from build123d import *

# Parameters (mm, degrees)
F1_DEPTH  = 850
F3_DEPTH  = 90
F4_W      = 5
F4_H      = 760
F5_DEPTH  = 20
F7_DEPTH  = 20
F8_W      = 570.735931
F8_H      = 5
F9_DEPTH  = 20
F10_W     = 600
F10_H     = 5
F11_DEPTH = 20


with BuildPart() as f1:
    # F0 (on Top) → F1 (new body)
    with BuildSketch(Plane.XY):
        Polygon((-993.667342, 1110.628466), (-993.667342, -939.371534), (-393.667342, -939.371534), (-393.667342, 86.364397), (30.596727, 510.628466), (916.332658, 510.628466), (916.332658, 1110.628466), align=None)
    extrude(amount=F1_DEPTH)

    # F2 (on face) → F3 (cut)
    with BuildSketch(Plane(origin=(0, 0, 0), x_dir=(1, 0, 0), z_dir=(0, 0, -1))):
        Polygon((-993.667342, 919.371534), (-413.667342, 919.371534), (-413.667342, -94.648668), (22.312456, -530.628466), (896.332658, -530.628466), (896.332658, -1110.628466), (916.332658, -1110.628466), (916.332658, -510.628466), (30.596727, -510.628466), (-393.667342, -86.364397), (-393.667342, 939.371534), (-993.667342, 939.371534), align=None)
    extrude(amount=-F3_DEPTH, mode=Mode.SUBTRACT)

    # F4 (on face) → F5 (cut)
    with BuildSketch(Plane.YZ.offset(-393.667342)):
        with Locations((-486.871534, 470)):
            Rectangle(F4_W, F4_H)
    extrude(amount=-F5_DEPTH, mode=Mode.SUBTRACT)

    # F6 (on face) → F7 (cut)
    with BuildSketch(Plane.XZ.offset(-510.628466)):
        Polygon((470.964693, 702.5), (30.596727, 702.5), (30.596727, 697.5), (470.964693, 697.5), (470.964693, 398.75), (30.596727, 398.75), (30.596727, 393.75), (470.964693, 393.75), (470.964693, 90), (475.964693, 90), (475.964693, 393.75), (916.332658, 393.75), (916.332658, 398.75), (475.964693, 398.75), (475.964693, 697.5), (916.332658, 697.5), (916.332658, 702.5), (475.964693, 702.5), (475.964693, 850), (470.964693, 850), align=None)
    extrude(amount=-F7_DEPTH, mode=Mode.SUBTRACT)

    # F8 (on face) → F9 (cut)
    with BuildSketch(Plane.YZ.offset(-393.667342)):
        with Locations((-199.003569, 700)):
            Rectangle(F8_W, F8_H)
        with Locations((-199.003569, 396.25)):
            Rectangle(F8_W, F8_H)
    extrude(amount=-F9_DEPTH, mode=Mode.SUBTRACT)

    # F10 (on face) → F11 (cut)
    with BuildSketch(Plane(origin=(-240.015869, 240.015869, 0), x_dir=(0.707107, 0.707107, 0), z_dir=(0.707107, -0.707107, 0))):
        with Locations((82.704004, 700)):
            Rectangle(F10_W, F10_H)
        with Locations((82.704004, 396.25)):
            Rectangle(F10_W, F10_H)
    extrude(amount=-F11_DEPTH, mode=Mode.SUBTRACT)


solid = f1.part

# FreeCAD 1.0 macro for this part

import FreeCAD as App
import Part
import Sketcher
from FreeCAD import Vector
Q = App.Units.Quantity

doc = App.newDocument("Part")
body = doc.addObject("PartDesign::Body", "Body")

sketch1 = doc.addObject("Sketcher::SketchObject", "Sketch")
body.addObject(sketch1)
sketch1.AttachmentSupport = (doc.XY_Plane, [""])
sketch1.MapMode = "FlatFace"
sketch1.addGeometry(Part.LineSegment(Vector(-994, 1111, 0), Vector(-994, -939, 0)), False)
sketch1.addGeometry(Part.LineSegment(Vector(-994, -939, 0), Vector(-394, -939, 0)), False)
sketch1.addGeometry(Part.LineSegment(Vector(-394, -939, 0), Vector(-394, 86, 0)), False)
sketch1.addGeometry(Part.LineSegment(Vector(-394, 86, 0), Vector(31, 511, 0)), False)
sketch1.addGeometry(Part.LineSegment(Vector(31, 511, 0), Vector(916, 511, 0)), False)
sketch1.addGeometry(Part.LineSegment(Vector(916, 511, 0), Vector(916, 1111, 0)), False)
sketch1.addGeometry(Part.LineSegment(Vector(916, 1111, 0), Vector(-994, 1111, 0)), False)
sketch1.addConstraint(Sketcher.Constraint("Coincident", 0, 2, 1, 1))
sketch1.addConstraint(Sketcher.Constraint("Coincident", 1, 2, 2, 1))
sketch1.addConstraint(Sketcher.Constraint("Coincident", 2, 2, 3, 1))
sketch1.addConstraint(Sketcher.Constraint("Coincident", 3, 2, 4, 1))
sketch1.addConstraint(Sketcher.Constraint("Coincident", 4, 2, 5, 1))
sketch1.addConstraint(Sketcher.Constraint("Coincident", 5, 2, 6, 1))
sketch1.addConstraint(Sketcher.Constraint("Coincident", 6, 2, 0, 1))
sketch1.addConstraint(Sketcher.Constraint("Vertical", 0))
sketch1.addConstraint(Sketcher.Constraint("Horizontal", 1))
sketch1.addConstraint(Sketcher.Constraint("Vertical", 2))
sketch1.addConstraint(Sketcher.Constraint("Horizontal", 4))
sketch1.addConstraint(Sketcher.Constraint("Vertical", 5))
sketch1.addConstraint(Sketcher.Constraint("Horizontal", 6))
sketch1.addConstraint(Sketcher.Constraint("Equal", 1, 5))
sketch1.addConstraint(Sketcher.Constraint("DistanceX", 1, 1, 1, 2, 600.0))
sketch1.addConstraint(Sketcher.Constraint("DistanceX", 6, 2, 6, 1, 1910.0))
sketch1.addConstraint(Sketcher.Constraint("DistanceY", 0, 2, 0, 1, 2050.0))
sketch1.addConstraint(Sketcher.Constraint("Angle", 3, Q("45 deg")))
sketch1.addConstraint(Sketcher.Constraint("Distance", 3, 600.0))
sketch1.addConstraint(Sketcher.Constraint("DistanceX", 0, 2, -1, 1, 993.667342))
sketch1.addConstraint(Sketcher.Constraint("DistanceY", 0, 2, -1, 1, 939.371534))
pad1 = doc.addObject("PartDesign::Pad", "Pad")
body.addObject(pad1)
pad1.Profile = sketch1
pad1.Length = 850

sketch2 = doc.addObject("Sketcher::SketchObject", "Sketch001")
body.addObject(sketch2)
sketch2.AttachmentSupport = (doc.XY_Plane, [""])
sketch2.MapMode = "FlatFace"
sketch2.addGeometry(Part.LineSegment(Vector(-994, -919, 0), Vector(-414, -919, 0)), False)
sketch2.addGeometry(Part.LineSegment(Vector(-414, -919, 0), Vector(-414, 95, 0)), False)
sketch2.addGeometry(Part.LineSegment(Vector(-414, 95, 0), Vector(22, 531, 0)), False)
sketch2.addGeometry(Part.LineSegment(Vector(22, 531, 0), Vector(896, 531, 0)), False)
sketch2.addGeometry(Part.LineSegment(Vector(896, 531, 0), Vector(896, 1111, 0)), False)
sketch2.addGeometry(Part.LineSegment(Vector(896, 1111, 0), Vector(916, 1111, 0)), False)
sketch2.addGeometry(Part.LineSegment(Vector(916, 1111, 0), Vector(916, 511, 0)), False)
sketch2.addGeometry(Part.LineSegment(Vector(916, 511, 0), Vector(31, 511, 0)), False)
sketch2.addGeometry(Part.LineSegment(Vector(31, 511, 0), Vector(-394, 86, 0)), False)
sketch2.addGeometry(Part.LineSegment(Vector(-394, 86, 0), Vector(-394, -939, 0)), False)
sketch2.addGeometry(Part.LineSegment(Vector(-394, -939, 0), Vector(-994, -939, 0)), False)
sketch2.addGeometry(Part.LineSegment(Vector(-994, -939, 0), Vector(-994, -919, 0)), False)
sketch2.addConstraint(Sketcher.Constraint("Coincident", 0, 2, 1, 1))
sketch2.addConstraint(Sketcher.Constraint("Coincident", 1, 2, 2, 1))
sketch2.addConstraint(Sketcher.Constraint("Coincident", 2, 2, 3, 1))
sketch2.addConstraint(Sketcher.Constraint("Coincident", 3, 2, 4, 1))
sketch2.addConstraint(Sketcher.Constraint("Coincident", 4, 2, 5, 1))
sketch2.addConstraint(Sketcher.Constraint("Coincident", 5, 2, 6, 1))
sketch2.addConstraint(Sketcher.Constraint("Coincident", 6, 2, 7, 1))
sketch2.addConstraint(Sketcher.Constraint("Coincident", 7, 2, 8, 1))
sketch2.addConstraint(Sketcher.Constraint("Coincident", 8, 2, 9, 1))
sketch2.addConstraint(Sketcher.Constraint("Coincident", 9, 2, 10, 1))
sketch2.addConstraint(Sketcher.Constraint("Coincident", 10, 2, 11, 1))
sketch2.addConstraint(Sketcher.Constraint("Coincident", 11, 2, 0, 1))
sketch2.addConstraint(Sketcher.Constraint("Horizontal", 0))
sketch2.addConstraint(Sketcher.Constraint("Vertical", 1))
sketch2.addConstraint(Sketcher.Constraint("Horizontal", 3))
sketch2.addConstraint(Sketcher.Constraint("Vertical", 4))
sketch2.addConstraint(Sketcher.Constraint("Horizontal", 5))
sketch2.addConstraint(Sketcher.Constraint("Vertical", 6))
sketch2.addConstraint(Sketcher.Constraint("Horizontal", 7))
sketch2.addConstraint(Sketcher.Constraint("Vertical", 9))
sketch2.addConstraint(Sketcher.Constraint("Horizontal", 10))
sketch2.addConstraint(Sketcher.Constraint("Vertical", 11))
sketch2.addConstraint(Sketcher.Constraint("Parallel", 2, 8))
sketch2.addConstraint(Sketcher.Constraint("Equal", 0, 4))
sketch2.addConstraint(Sketcher.Constraint("Equal", 10, 6))
sketch2.addConstraint(Sketcher.Constraint("Equal", 5, 11))
sketch2.addConstraint(Sketcher.Constraint("DistanceX", 0, 1, 0, 2, 580.0))
sketch2.addConstraint(Sketcher.Constraint("DistanceX", 5, 1, 5, 2, 20.0))
sketch2.addConstraint(Sketcher.Constraint("DistanceX", 10, 2, 10, 1, 600.0))
sketch2.addConstraint(Sketcher.Constraint("Angle", 2, Q("45 deg")))
sketch2.addConstraint(Sketcher.Constraint("Distance", 8, 600.0))
sketch2.addConstraint(Sketcher.Constraint("DistanceY", 0, 2, 2, 2, 1450.0))
sketch2.addConstraint(Sketcher.Constraint("DistanceX", 1, 2, 3, 2, 1310.0))
sketch2.addConstraint(Sketcher.Constraint("DistanceX", 3, 1, 3, 2, 874.020202))
sketch2.addConstraint(Sketcher.Constraint("DistanceX", 0, 2, -1, 1, 413.667342))
sketch2.addConstraint(Sketcher.Constraint("DistanceY", -1, 1, 1, 2, 94.648668))
pocket1 = doc.addObject("PartDesign::Pocket", "Pocket")
body.addObject(pocket1)
pocket1.Profile = sketch2
pocket1.Length = 90
pocket1.Reversed = True

sketch3 = doc.addObject("Sketcher::SketchObject", "Sketch002")
body.addObject(sketch3)
sketch3.AttachmentSupport = (doc.YZ_Plane, [""])
sketch3.MapMode = "FlatFace"
sketch3.AttachmentOffset = App.Placement(Vector(0, 0, -393.667342), App.Rotation())
sketch3.addGeometry(Part.LineSegment(Vector(-489, 850, 0), Vector(-489, 90, 0)), False)
sketch3.addGeometry(Part.LineSegment(Vector(-489, 90, 0), Vector(-484, 90, 0)), False)
sketch3.addGeometry(Part.LineSegment(Vector(-484, 90, 0), Vector(-484, 850, 0)), False)
sketch3.addGeometry(Part.LineSegment(Vector(-484, 850, 0), Vector(-489, 850, 0)), False)
sketch3.addConstraint(Sketcher.Constraint("Coincident", 0, 2, 1, 1))
sketch3.addConstraint(Sketcher.Constraint("Coincident", 1, 2, 2, 1))
sketch3.addConstraint(Sketcher.Constraint("Coincident", 2, 2, 3, 1))
sketch3.addConstraint(Sketcher.Constraint("Coincident", 3, 2, 0, 1))
sketch3.addConstraint(Sketcher.Constraint("Vertical", 0))
sketch3.addConstraint(Sketcher.Constraint("Horizontal", 1))
sketch3.addConstraint(Sketcher.Constraint("Vertical", 2))
sketch3.addConstraint(Sketcher.Constraint("Horizontal", 3))
sketch3.addConstraint(Sketcher.Constraint("DistanceX", 1, 1, 1, 2, 5.0))
sketch3.addConstraint(Sketcher.Constraint("DistanceY", 0, 2, 0, 1, 760.0))
sketch3.addConstraint(Sketcher.Constraint("DistanceY", -1, 1, 0, 2, 90.0))
sketch3.addConstraint(Sketcher.Constraint("DistanceX", 0, 2, -1, 1, 489.371534))
pocket2 = doc.addObject("PartDesign::Pocket", "Pocket001")
body.addObject(pocket2)
pocket2.Profile = sketch3
pocket2.Length = 20

sketch4 = doc.addObject("Sketcher::SketchObject", "Sketch003")
body.addObject(sketch4)
sketch4.AttachmentSupport = (doc.XZ_Plane, [""])
sketch4.MapMode = "FlatFace"
sketch4.AttachmentOffset = App.Placement(Vector(0, 0, -510.628466), App.Rotation())
sketch4.addGeometry(Part.LineSegment(Vector(471, 702, 0), Vector(31, 702, 0)), False)
sketch4.addGeometry(Part.LineSegment(Vector(31, 702, 0), Vector(31, 698, 0)), False)
sketch4.addGeometry(Part.LineSegment(Vector(31, 698, 0), Vector(471, 698, 0)), False)
sketch4.addGeometry(Part.LineSegment(Vector(471, 698, 0), Vector(471, 399, 0)), False)
sketch4.addGeometry(Part.LineSegment(Vector(471, 399, 0), Vector(31, 399, 0)), False)
sketch4.addGeometry(Part.LineSegment(Vector(31, 399, 0), Vector(31, 394, 0)), False)
sketch4.addGeometry(Part.LineSegment(Vector(31, 394, 0), Vector(471, 394, 0)), False)
sketch4.addGeometry(Part.LineSegment(Vector(471, 394, 0), Vector(471, 90, 0)), False)
sketch4.addGeometry(Part.LineSegment(Vector(471, 90, 0), Vector(476, 90, 0)), False)
sketch4.addGeometry(Part.LineSegment(Vector(476, 90, 0), Vector(476, 394, 0)), False)
sketch4.addGeometry(Part.LineSegment(Vector(476, 394, 0), Vector(916, 394, 0)), False)
sketch4.addGeometry(Part.LineSegment(Vector(916, 394, 0), Vector(916, 399, 0)), False)
sketch4.addGeometry(Part.LineSegment(Vector(916, 399, 0), Vector(476, 399, 0)), False)
sketch4.addGeometry(Part.LineSegment(Vector(476, 399, 0), Vector(476, 698, 0)), False)
sketch4.addGeometry(Part.LineSegment(Vector(476, 698, 0), Vector(916, 698, 0)), False)
sketch4.addGeometry(Part.LineSegment(Vector(916, 698, 0), Vector(916, 702, 0)), False)
sketch4.addGeometry(Part.LineSegment(Vector(916, 702, 0), Vector(476, 702, 0)), False)
sketch4.addGeometry(Part.LineSegment(Vector(476, 702, 0), Vector(476, 850, 0)), False)
sketch4.addGeometry(Part.LineSegment(Vector(476, 850, 0), Vector(471, 850, 0)), False)
sketch4.addGeometry(Part.LineSegment(Vector(471, 850, 0), Vector(471, 702, 0)), False)
sketch4.addConstraint(Sketcher.Constraint("Coincident", 0, 2, 1, 1))
sketch4.addConstraint(Sketcher.Constraint("Coincident", 1, 2, 2, 1))
sketch4.addConstraint(Sketcher.Constraint("Coincident", 2, 2, 3, 1))
sketch4.addConstraint(Sketcher.Constraint("Coincident", 3, 2, 4, 1))
sketch4.addConstraint(Sketcher.Constraint("Coincident", 4, 2, 5, 1))
sketch4.addConstraint(Sketcher.Constraint("Coincident", 5, 2, 6, 1))
sketch4.addConstraint(Sketcher.Constraint("Coincident", 6, 2, 7, 1))
sketch4.addConstraint(Sketcher.Constraint("Coincident", 7, 2, 8, 1))
sketch4.addConstraint(Sketcher.Constraint("Coincident", 8, 2, 9, 1))
sketch4.addConstraint(Sketcher.Constraint("Coincident", 9, 2, 10, 1))
sketch4.addConstraint(Sketcher.Constraint("Coincident", 10, 2, 11, 1))
sketch4.addConstraint(Sketcher.Constraint("Coincident", 11, 2, 12, 1))
sketch4.addConstraint(Sketcher.Constraint("Coincident", 12, 2, 13, 1))
sketch4.addConstraint(Sketcher.Constraint("Coincident", 13, 2, 14, 1))
sketch4.addConstraint(Sketcher.Constraint("Coincident", 14, 2, 15, 1))
sketch4.addConstraint(Sketcher.Constraint("Coincident", 15, 2, 16, 1))
sketch4.addConstraint(Sketcher.Constraint("Coincident", 16, 2, 17, 1))
sketch4.addConstraint(Sketcher.Constraint("Coincident", 17, 2, 18, 1))
sketch4.addConstraint(Sketcher.Constraint("Coincident", 18, 2, 19, 1))
sketch4.addConstraint(Sketcher.Constraint("Coincident", 19, 2, 0, 1))
sketch4.addConstraint(Sketcher.Constraint("Horizontal", 0))
sketch4.addConstraint(Sketcher.Constraint("Vertical", 1))
sketch4.addConstraint(Sketcher.Constraint("Horizontal", 2))
sketch4.addConstraint(Sketcher.Constraint("Vertical", 3))
sketch4.addConstraint(Sketcher.Constraint("Horizontal", 4))
sketch4.addConstraint(Sketcher.Constraint("Vertical", 5))
sketch4.addConstraint(Sketcher.Constraint("Horizontal", 6))
sketch4.addConstraint(Sketcher.Constraint("Vertical", 7))
sketch4.addConstraint(Sketcher.Constraint("Horizontal", 8))
sketch4.addConstraint(Sketcher.Constraint("Vertical", 9))
sketch4.addConstraint(Sketcher.Constraint("Horizontal", 10))
sketch4.addConstraint(Sketcher.Constraint("Vertical", 11))
sketch4.addConstraint(Sketcher.Constraint("Horizontal", 12))
sketch4.addConstraint(Sketcher.Constraint("Vertical", 13))
sketch4.addConstraint(Sketcher.Constraint("Horizontal", 14))
sketch4.addConstraint(Sketcher.Constraint("Vertical", 15))
sketch4.addConstraint(Sketcher.Constraint("Horizontal", 16))
sketch4.addConstraint(Sketcher.Constraint("Vertical", 17))
sketch4.addConstraint(Sketcher.Constraint("Horizontal", 18))
sketch4.addConstraint(Sketcher.Constraint("Vertical", 19))
sketch4.addConstraint(Sketcher.Constraint("Horizontal", 6, 2, 9, 2))
sketch4.addConstraint(Sketcher.Constraint("Horizontal", 4, 2, 11, 2))
sketch4.addConstraint(Sketcher.Constraint("Horizontal", 2, 2, 13, 2))
sketch4.addConstraint(Sketcher.Constraint("Horizontal", 0, 2, 15, 2))
sketch4.addConstraint(Sketcher.Constraint("Vertical", 1, 2, 4, 2))
sketch4.addConstraint(Sketcher.Constraint("Vertical", 3, 2, 6, 2))
sketch4.addConstraint(Sketcher.Constraint("Vertical", 9, 2, 12, 2))
sketch4.addConstraint(Sketcher.Constraint("Vertical", 11, 2, 14, 2))
sketch4.addConstraint(Sketcher.Constraint("Vertical", 13, 2, 16, 2))
sketch4.addConstraint(Sketcher.Constraint("Vertical", 7, 2, 18, 2))
sketch4.addConstraint(Sketcher.Constraint("Equal", 6, 10))
sketch4.addConstraint(Sketcher.Constraint("Equal", 18, 1))
sketch4.addConstraint(Sketcher.Constraint("Equal", 1, 5))
sketch4.addConstraint(Sketcher.Constraint("DistanceX", 8, 1, 8, 2, 5.0))
sketch4.addConstraint(Sketcher.Constraint("DistanceY", 17, 1, 17, 2, 147.5))
sketch4.addConstraint(Sketcher.Constraint("DistanceY", -1, 1, 7, 2, 90.0))
sketch4.addConstraint(Sketcher.Constraint("DistanceY", -1, 1, 17, 2, 850.0))
sketch4.addConstraint(Sketcher.Constraint("DistanceY", 3, 2, 3, 1, 298.75))
sketch4.addConstraint(Sketcher.Constraint("DistanceX", 0, 2, 0, 1, 440.367966))
sketch4.addConstraint(Sketcher.Constraint("DistanceX", -1, 1, 10, 2, 916.332658))
pocket3 = doc.addObject("PartDesign::Pocket", "Pocket002")
body.addObject(pocket3)
pocket3.Profile = sketch4
pocket3.Length = 20

sketch5 = doc.addObject("Sketcher::SketchObject", "Sketch004")
body.addObject(sketch5)
sketch5.AttachmentSupport = (doc.YZ_Plane, [""])
sketch5.MapMode = "FlatFace"
sketch5.AttachmentOffset = App.Placement(Vector(0, 0, -393.667342), App.Rotation())
sketch5.addGeometry(Part.LineSegment(Vector(-484, 702, 0), Vector(-484, 698, 0)), False)
sketch5.addGeometry(Part.LineSegment(Vector(-484, 698, 0), Vector(86, 698, 0)), False)
sketch5.addGeometry(Part.LineSegment(Vector(86, 698, 0), Vector(86, 702, 0)), False)
sketch5.addGeometry(Part.LineSegment(Vector(86, 702, 0), Vector(-484, 702, 0)), False)
sketch5.addGeometry(Part.LineSegment(Vector(-484, 399, 0), Vector(-484, 394, 0)), False)
sketch5.addGeometry(Part.LineSegment(Vector(-484, 394, 0), Vector(86, 394, 0)), False)
sketch5.addGeometry(Part.LineSegment(Vector(86, 394, 0), Vector(86, 399, 0)), False)
sketch5.addGeometry(Part.LineSegment(Vector(86, 399, 0), Vector(-484, 399, 0)), False)
sketch5.addConstraint(Sketcher.Constraint("Coincident", 0, 2, 1, 1))
sketch5.addConstraint(Sketcher.Constraint("Coincident", 1, 2, 2, 1))
sketch5.addConstraint(Sketcher.Constraint("Coincident", 2, 2, 3, 1))
sketch5.addConstraint(Sketcher.Constraint("Coincident", 3, 2, 0, 1))
sketch5.addConstraint(Sketcher.Constraint("Coincident", 4, 2, 5, 1))
sketch5.addConstraint(Sketcher.Constraint("Coincident", 5, 2, 6, 1))
sketch5.addConstraint(Sketcher.Constraint("Coincident", 6, 2, 7, 1))
sketch5.addConstraint(Sketcher.Constraint("Coincident", 7, 2, 4, 1))
sketch5.addConstraint(Sketcher.Constraint("Vertical", 0))
sketch5.addConstraint(Sketcher.Constraint("Horizontal", 1))
sketch5.addConstraint(Sketcher.Constraint("Vertical", 2))
sketch5.addConstraint(Sketcher.Constraint("Horizontal", 3))
sketch5.addConstraint(Sketcher.Constraint("Vertical", 4))
sketch5.addConstraint(Sketcher.Constraint("Horizontal", 5))
sketch5.addConstraint(Sketcher.Constraint("Vertical", 6))
sketch5.addConstraint(Sketcher.Constraint("Horizontal", 7))
sketch5.addConstraint(Sketcher.Constraint("Vertical", 3, 2, 4, 2))
sketch5.addConstraint(Sketcher.Constraint("Vertical", 2, 2, 5, 2))
sketch5.addConstraint(Sketcher.Constraint("Equal", 2, 4))
sketch5.addConstraint(Sketcher.Constraint("DistanceY", 0, 2, 0, 1, 5.0))
sketch5.addConstraint(Sketcher.Constraint("DistanceY", -1, 1, 0, 2, 697.5))
sketch5.addConstraint(Sketcher.Constraint("DistanceY", -1, 1, 4, 2, 393.75))
sketch5.addConstraint(Sketcher.Constraint("DistanceX", 1, 1, 1, 2, 570.735931))
sketch5.addConstraint(Sketcher.Constraint("DistanceX", 0, 2, -1, 1, 484.371534))
pocket4 = doc.addObject("PartDesign::Pocket", "Pocket003")
body.addObject(pocket4)
pocket4.Profile = sketch5
pocket4.Length = 20

sketch6 = doc.addObject("Sketcher::SketchObject", "Sketch005")
body.addObject(sketch6)
sketch6.Placement = App.Placement(Vector(-240.015869, 240.015869, 0), App.Rotation(Vector(0.707106781, 0.707106781, 0), Vector(0, 0, 0.999999999), Vector(0.707106781, -0.707106781, 0), "ZXY"))
sketch6.addGeometry(Part.LineSegment(Vector(-217.3, 702.5, 0), Vector(-217.3, 697.5, 0)), False)
sketch6.addGeometry(Part.LineSegment(Vector(-217.3, 697.5, 0), Vector(382.7, 697.5, 0)), False)
sketch6.addGeometry(Part.LineSegment(Vector(382.7, 697.5, 0), Vector(382.7, 702.5, 0)), False)
sketch6.addGeometry(Part.LineSegment(Vector(382.7, 702.5, 0), Vector(-217.3, 702.5, 0)), False)
sketch6.addGeometry(Part.LineSegment(Vector(-217.3, 398.7, 0), Vector(-217.3, 393.7, 0)), False)
sketch6.addGeometry(Part.LineSegment(Vector(-217.3, 393.7, 0), Vector(382.7, 393.7, 0)), False)
sketch6.addGeometry(Part.LineSegment(Vector(382.7, 393.7, 0), Vector(382.7, 398.7, 0)), False)
sketch6.addGeometry(Part.LineSegment(Vector(382.7, 398.7, 0), Vector(-217.3, 398.7, 0)), False)
sketch6.addConstraint(Sketcher.Constraint("Coincident", 0, 2, 1, 1))
sketch6.addConstraint(Sketcher.Constraint("Coincident", 1, 2, 2, 1))
sketch6.addConstraint(Sketcher.Constraint("Coincident", 2, 2, 3, 1))
sketch6.addConstraint(Sketcher.Constraint("Coincident", 3, 2, 0, 1))
sketch6.addConstraint(Sketcher.Constraint("Coincident", 4, 2, 5, 1))
sketch6.addConstraint(Sketcher.Constraint("Coincident", 5, 2, 6, 1))
sketch6.addConstraint(Sketcher.Constraint("Coincident", 6, 2, 7, 1))
sketch6.addConstraint(Sketcher.Constraint("Coincident", 7, 2, 4, 1))
sketch6.addConstraint(Sketcher.Constraint("Vertical", 0))
sketch6.addConstraint(Sketcher.Constraint("Horizontal", 1))
sketch6.addConstraint(Sketcher.Constraint("Vertical", 2))
sketch6.addConstraint(Sketcher.Constraint("Horizontal", 3))
sketch6.addConstraint(Sketcher.Constraint("Vertical", 4))
sketch6.addConstraint(Sketcher.Constraint("Horizontal", 5))
sketch6.addConstraint(Sketcher.Constraint("Vertical", 6))
sketch6.addConstraint(Sketcher.Constraint("Horizontal", 7))
sketch6.addConstraint(Sketcher.Constraint("Vertical", 3, 2, 4, 2))
sketch6.addConstraint(Sketcher.Constraint("Vertical", 2, 2, 5, 2))
sketch6.addConstraint(Sketcher.Constraint("Equal", 2, 4))
sketch6.addConstraint(Sketcher.Constraint("DistanceX", 1, 1, 1, 2, 600.0))
sketch6.addConstraint(Sketcher.Constraint("DistanceY", 0, 2, 0, 1, 5.0))
sketch6.addConstraint(Sketcher.Constraint("DistanceY", -1, 1, 0, 2, 697.499999))
sketch6.addConstraint(Sketcher.Constraint("DistanceY", -1, 1, 4, 2, 393.75))
sketch6.addConstraint(Sketcher.Constraint("DistanceX", 0, 2, -1, 1, 217.295996))
pocket5 = doc.addObject("PartDesign::Pocket", "Pocket004")
body.addObject(pocket5)
pocket5.Profile = sketch6
pocket5.Length = 20

doc.recompute()
